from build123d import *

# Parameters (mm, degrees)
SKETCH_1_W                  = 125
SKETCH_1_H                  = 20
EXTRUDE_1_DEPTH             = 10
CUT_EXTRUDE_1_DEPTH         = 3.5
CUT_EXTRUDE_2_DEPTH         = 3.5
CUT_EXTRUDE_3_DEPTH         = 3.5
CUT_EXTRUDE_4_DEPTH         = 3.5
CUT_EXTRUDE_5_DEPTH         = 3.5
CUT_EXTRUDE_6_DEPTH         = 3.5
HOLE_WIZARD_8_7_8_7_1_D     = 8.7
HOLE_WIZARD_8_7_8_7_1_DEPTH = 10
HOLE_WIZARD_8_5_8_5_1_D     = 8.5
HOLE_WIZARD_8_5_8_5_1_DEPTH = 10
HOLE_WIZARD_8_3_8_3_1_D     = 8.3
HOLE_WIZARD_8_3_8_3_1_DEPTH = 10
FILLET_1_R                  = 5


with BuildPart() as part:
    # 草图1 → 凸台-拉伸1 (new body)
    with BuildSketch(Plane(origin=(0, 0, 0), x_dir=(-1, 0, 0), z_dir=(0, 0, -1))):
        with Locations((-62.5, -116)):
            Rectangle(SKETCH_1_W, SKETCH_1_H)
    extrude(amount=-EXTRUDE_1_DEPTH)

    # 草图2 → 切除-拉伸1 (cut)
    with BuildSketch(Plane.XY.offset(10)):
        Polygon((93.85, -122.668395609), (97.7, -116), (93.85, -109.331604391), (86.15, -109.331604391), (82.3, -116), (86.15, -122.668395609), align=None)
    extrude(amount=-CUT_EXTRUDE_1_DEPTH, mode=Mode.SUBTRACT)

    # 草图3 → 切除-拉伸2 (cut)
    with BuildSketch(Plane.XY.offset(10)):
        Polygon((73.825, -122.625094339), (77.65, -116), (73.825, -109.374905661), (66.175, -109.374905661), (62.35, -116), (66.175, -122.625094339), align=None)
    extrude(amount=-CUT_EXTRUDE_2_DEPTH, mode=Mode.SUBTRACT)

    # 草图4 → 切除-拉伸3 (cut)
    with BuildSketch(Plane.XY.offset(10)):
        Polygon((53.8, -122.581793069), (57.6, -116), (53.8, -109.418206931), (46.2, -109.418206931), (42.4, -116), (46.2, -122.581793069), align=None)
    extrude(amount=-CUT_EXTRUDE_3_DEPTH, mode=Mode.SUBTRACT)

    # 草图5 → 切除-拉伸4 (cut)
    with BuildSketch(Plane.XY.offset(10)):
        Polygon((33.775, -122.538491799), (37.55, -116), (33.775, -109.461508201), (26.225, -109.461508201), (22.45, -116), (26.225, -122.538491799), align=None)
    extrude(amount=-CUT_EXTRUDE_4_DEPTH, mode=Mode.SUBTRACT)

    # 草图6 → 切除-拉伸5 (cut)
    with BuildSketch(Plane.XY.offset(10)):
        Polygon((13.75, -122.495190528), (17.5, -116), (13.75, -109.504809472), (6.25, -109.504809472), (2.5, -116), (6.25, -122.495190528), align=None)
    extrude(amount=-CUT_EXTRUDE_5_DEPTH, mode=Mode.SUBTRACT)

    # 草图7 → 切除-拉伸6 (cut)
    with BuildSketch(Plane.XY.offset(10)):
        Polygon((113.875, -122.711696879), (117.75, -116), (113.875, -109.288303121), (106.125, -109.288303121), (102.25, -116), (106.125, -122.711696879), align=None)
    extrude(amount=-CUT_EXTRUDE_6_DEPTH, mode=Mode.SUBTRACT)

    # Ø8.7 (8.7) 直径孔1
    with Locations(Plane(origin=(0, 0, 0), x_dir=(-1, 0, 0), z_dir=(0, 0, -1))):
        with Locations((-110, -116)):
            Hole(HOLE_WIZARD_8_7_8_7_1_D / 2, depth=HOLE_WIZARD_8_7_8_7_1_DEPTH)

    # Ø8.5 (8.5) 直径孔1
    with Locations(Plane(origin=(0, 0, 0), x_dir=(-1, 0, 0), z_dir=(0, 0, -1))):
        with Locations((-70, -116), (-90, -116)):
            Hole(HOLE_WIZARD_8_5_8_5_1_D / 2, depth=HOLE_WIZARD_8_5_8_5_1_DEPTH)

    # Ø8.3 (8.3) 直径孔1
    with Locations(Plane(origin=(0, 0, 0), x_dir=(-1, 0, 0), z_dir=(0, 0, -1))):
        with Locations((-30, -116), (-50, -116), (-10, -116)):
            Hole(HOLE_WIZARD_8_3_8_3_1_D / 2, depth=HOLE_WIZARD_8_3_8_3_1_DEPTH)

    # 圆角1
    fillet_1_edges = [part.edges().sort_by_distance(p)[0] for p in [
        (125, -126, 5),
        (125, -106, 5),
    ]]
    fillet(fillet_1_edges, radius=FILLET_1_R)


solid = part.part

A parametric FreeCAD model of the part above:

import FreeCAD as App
import Part
import Sketcher

V = App.Vector
Q = App.Units.Quantity


def edges_at(feature, points):
    """Names of the edges that pass closest to the given points."""
    edges = feature.Shape.Edges
    near = lambda p: min(range(len(edges)), key=lambda i: edges[i].distToShape(Part.Vertex(*p))[0])
    return sorted({f"Edge{near(p) + 1}" for p in points})

doc = App.newDocument("Part")
body = doc.addObject("PartDesign::Body", "Body")

sketch1 = doc.addObject("Sketcher::SketchObject", "Sketch")
body.addObject(sketch1)
sketch1.AttachmentSupport = (doc.XY_Plane, [""])
sketch1.MapMode = "FlatFace"
sketch1.addGeometry([
    Part.LineSegment(V(125, -106, 0), V(125, -126, 0)),
    Part.LineSegment(V(125, -126, 0), V(0, -126, 0)),
    Part.LineSegment(V(0, -126, 0), V(0, -106, 0)),
    Part.LineSegment(V(0, -106, 0), V(125, -106, 0)),
], False)
sketch1.addConstraint([
    Sketcher.Constraint("Coincident", 0, 2, 1, 1),
    Sketcher.Constraint("Coincident", 1, 2, 2, 1),
    Sketcher.Constraint("Coincident", 2, 2, 3, 1),
    Sketcher.Constraint("Coincident", 3, 2, 0, 1),
    Sketcher.Constraint("Vertical", 0),
    Sketcher.Constraint("Horizontal", 1),
    Sketcher.Constraint("Vertical", 2),
    Sketcher.Constraint("Horizontal", 3),
    Sketcher.Constraint("PointOnObject", 1, 2, -2),
    Sketcher.Constraint("DistanceX", 1, 2, 1, 1, 125.0),
    Sketcher.Constraint("DistanceY", 0, 2, 0, 1, 20.0),
    Sketcher.Constraint("DistanceY", 0, 2, -1, 1, 126.0),
])
pad1 = doc.addObject("PartDesign::Pad", "Pad")
body.addObject(pad1)
pad1.Profile = sketch1
pad1.Length = 10

sketch2 = doc.addObject("Sketcher::SketchObject", "Sketch001")
body.addObject(sketch2)
sketch2.AttachmentSupport = (doc.XY_Plane, [""])
sketch2.MapMode = "FlatFace"
sketch2.AttachmentOffset = App.Placement(V(0, 0, 10), App.Rotation())
sketch2.addGeometry([
    Part.LineSegment(V(93.85, -122.668396, 0), V(97.7, -116, 0)),
    Part.LineSegment(V(97.7, -116, 0), V(93.85, -109.331604, 0)),
    Part.LineSegment(V(93.85, -109.331604, 0), V(86.15, -109.331604, 0)),
    Part.LineSegment(V(86.15, -109.331604, 0), V(82.3, -116, 0)),
    Part.LineSegment(V(82.3, -116, 0), V(86.15, -122.668396, 0)),
    Part.LineSegment(V(86.15, -122.668396, 0), V(93.85, -122.668396, 0)),
], False)
sketch2.addConstraint([
    Sketcher.Constraint("Coincident", 0, 2, 1, 1),
    Sketcher.Constraint("Coincident", 1, 2, 2, 1),
    Sketcher.Constraint("Coincident", 2, 2, 3, 1),
    Sketcher.Constraint("Coincident", 3, 2, 4, 1),
    Sketcher.Constraint("Coincident", 4, 2, 5, 1),
    Sketcher.Constraint("Coincident", 5, 2, 0, 1),
    Sketcher.Constraint("Horizontal", 2),
    Sketcher.Constraint("Horizontal", 5),
    Sketcher.Constraint("Parallel", 0, 3),
    Sketcher.Constraint("Parallel", 1, 4),
    Sketcher.Constraint("Horizontal", 0, 2, 3, 2),
    Sketcher.Constraint("Vertical", 2, 2, 4, 2),
    Sketcher.Constraint("Vertical", 1, 2, 5, 2),
    Sketcher.Constraint("Angle", 0, Q("60 deg")),
    Sketcher.Constraint("DistanceX", 2, 2, 2, 1, 7.7),
    Sketcher.Constraint("DistanceY", 0, 2, -1, 1, 116.0),
    Sketcher.Constraint("Distance", 0, 7.7),
    Sketcher.Constraint("DistanceX", -1, 1, 0, 2, 97.7),
])
pocket1 = doc.addObject("PartDesign::Pocket", "Pocket")
body.addObject(pocket1)
pocket1.Profile = sketch2
pocket1.Length = 3.5

sketch3 = doc.addObject("Sketcher::SketchObject", "Sketch002")
body.addObject(sketch3)
sketch3.AttachmentSupport = (doc.XY_Plane, [""])
sketch3.MapMode = "FlatFace"
sketch3.AttachmentOffset = App.Placement(V(0, 0, 10), App.Rotation())
sketch3.addGeometry([
    Part.LineSegment(V(73.825, -122.625094, 0), V(77.65, -116, 0)),
    Part.LineSegment(V(77.65, -116, 0), V(73.825, -109.374906, 0)),
    Part.LineSegment(V(73.825, -109.374906, 0), V(66.175, -109.374906, 0)),
    Part.LineSegment(V(66.175, -109.374906, 0), V(62.35, -116, 0)),
    Part.LineSegment(V(62.35, -116, 0), V(66.175, -122.625094, 0)),
    Part.LineSegment(V(66.175, -122.625094, 0), V(73.825, -122.625094, 0)),
], False)
sketch3.addConstraint([
    Sketcher.Constraint("Coincident", 0, 2, 1, 1),
    Sketcher.Constraint("Coincident", 1, 2, 2, 1),
    Sketcher.Constraint("Coincident", 2, 2, 3, 1),
    Sketcher.Constraint("Coincident", 3, 2, 4, 1),
    Sketcher.Constraint("Coincident", 4, 2, 5, 1),
    Sketcher.Constraint("Coincident", 5, 2, 0, 1),
    Sketcher.Constraint("Horizontal", 2),
    Sketcher.Constraint("Horizontal", 5),
    Sketcher.Constraint("Parallel", 0, 3),
    Sketcher.Constraint("Parallel", 1, 4),
    Sketcher.Constraint("Horizontal", 0, 2, 3, 2),
    Sketcher.Constraint("Vertical", 2, 2, 4, 2),
    Sketcher.Constraint("Vertical", 1, 2, 5, 2),
    Sketcher.Constraint("Angle", 0, Q("60 deg")),
    Sketcher.Constraint("DistanceY", 0, 2, -1, 1, 116.0),
    Sketcher.Constraint("DistanceX", 2, 2, 2, 1, 7.65),
    Sketcher.Constraint("DistanceX", 3, 2, 0, 2, 15.3),
    Sketcher.Constraint("DistanceX", -1, 1, 0, 2, 77.65),
])
pocket2 = doc.addObject("PartDesign::Pocket", "Pocket001")
body.addObject(pocket2)
pocket2.Profile = sketch3
pocket2.Length = 3.5

sketch4 = doc.addObject("Sketcher::SketchObject", "Sketch003")
body.addObject(sketch4)
sketch4.AttachmentSupport = (doc.XY_Plane, [""])
sketch4.MapMode = "FlatFace"
sketch4.AttachmentOffset = App.Placement(V(0, 0, 10), App.Rotation())
sketch4.addGeometry([
    Part.LineSegment(V(53.8, -122.581793, 0), V(57.6, -116, 0)),
    Part.LineSegment(V(57.6, -116, 0), V(53.8, -109.418207, 0)),
    Part.LineSegment(V(53.8, -109.418207, 0), V(46.2, -109.418207, 0)),
    Part.LineSegment(V(46.2, -109.418207, 0), V(42.4, -116, 0)),
    Part.LineSegment(V(42.4, -116, 0), V(46.2, -122.581793, 0)),
    Part.LineSegment(V(46.2, -122.581793, 0), V(53.8, -122.581793, 0)),
], False)
sketch4.addConstraint([
    Sketcher.Constraint("Coincident", 0, 2, 1, 1),
    Sketcher.Constraint("Coincident", 1, 2, 2, 1),
    Sketcher.Constraint("Coincident", 2, 2, 3, 1),
    Sketcher.Constraint("Coincident", 3, 2, 4, 1),
    Sketcher.Constraint("Coincident", 4, 2, 5, 1),
    Sketcher.Constraint("Coincident", 5, 2, 0, 1),
    Sketcher.Constraint("Horizontal", 2),
    Sketcher.Constraint("Horizontal", 5),
    Sketcher.Constraint("Parallel", 0, 3),
    Sketcher.Constraint("Parallel", 1, 4),
    Sketcher.Constraint("Horizontal", 0, 2, 3, 2),
    Sketcher.Constraint("Vertical", 2, 2, 4, 2),
    Sketcher.Constraint("Vertical", 1, 2, 5, 2),
    Sketcher.Constraint("Angle", 0, Q("60 deg")),
    Sketcher.Constraint("DistanceX", 2, 2, 2, 1, 7.6),
    Sketcher.Constraint("DistanceY", 0, 2, -1, 1, 116.0),
    Sketcher.Constraint("Distance", 0, 7.6),
    Sketcher.Constraint("DistanceX", -1, 1, 0, 2, 57.6),
])
pocket3 = doc.addObject("PartDesign::Pocket", "Pocket002")
body.addObject(pocket3)
pocket3.Profile = sketch4
pocket3.Length = 3.5

sketch5 = doc.addObject("Sketcher::SketchObject", "Sketch004")
body.addObject(sketch5)
sketch5.AttachmentSupport = (doc.XY_Plane, [""])
sketch5.MapMode = "FlatFace"
sketch5.AttachmentOffset = App.Placement(V(0, 0, 10), App.Rotation())
sketch5.addGeometry([
    Part.LineSegment(V(33.775, -122.538492, 0), V(37.55, -116, 0)),
    Part.LineSegment(V(37.55, -116, 0), V(33.775, -109.461508, 0)),
    Part.LineSegment(V(33.775, -109.461508, 0), V(26.225, -109.461508, 0)),
    Part.LineSegment(V(26.225, -109.461508, 0), V(22.45, -116, 0)),
    Part.LineSegment(V(22.45, -116, 0), V(26.225, -122.538492, 0)),
    Part.LineSegment(V(26.225, -122.538492, 0), V(33.775, -122.538492, 0)),
], False)
sketch5.addConstraint([
    Sketcher.Constraint("Coincident", 0, 2, 1, 1),
    Sketcher.Constraint("Coincident", 1, 2, 2, 1),
    Sketcher.Constraint("Coincident", 2, 2, 3, 1),
    Sketcher.Constraint("Coincident", 3, 2, 4, 1),
    Sketcher.Constraint("Coincident", 4, 2, 5, 1),
    Sketcher.Constraint("Coincident", 5, 2, 0, 1),
    Sketcher.Constraint("Horizontal", 2),
    Sketcher.Constraint("Horizontal", 5),
    Sketcher.Constraint("Parallel", 0, 3),
    Sketcher.Constraint("Parallel", 1, 4),
    Sketcher.Constraint("Horizontal", 0, 2, 3, 2),
    Sketcher.Constraint("Vertical", 2, 2, 4, 2),
    Sketcher.Constraint("Vertical", 1, 2, 5, 2),
    Sketcher.Constraint("Angle", 0, Q("60 deg")),
    Sketcher.Constraint("DistanceY", 0, 2, -1, 1, 116.0),
    Sketcher.Constraint("DistanceX", 2, 2, 2, 1, 7.55),
    Sketcher.Constraint("DistanceX", 3, 2, 0, 2, 15.1),
    Sketcher.Constraint("DistanceX", -1, 1, 0, 2, 37.55),
])
pocket4 = doc.addObject("PartDesign::Pocket", "Pocket003")
body.addObject(pocket4)
pocket4.Profile = sketch5
pocket4.Length = 3.5

sketch6 = doc.addObject("Sketcher::SketchObject", "Sketch005")
body.addObject(sketch6)
sketch6.AttachmentSupport = (doc.XY_Plane, [""])
sketch6.MapMode = "FlatFace"
sketch6.AttachmentOffset = App.Placement(V(0, 0, 10), App.Rotation())
sketch6.addGeometry([
    Part.LineSegment(V(13.75, -122.495191, 0), V(17.5, -116, 0)),
    Part.LineSegment(V(17.5, -116, 0), V(13.75, -109.504809, 0)),
    Part.LineSegment(V(13.75, -109.504809, 0), V(6.25, -109.504809, 0)),
    Part.LineSegment(V(6.25, -109.504809, 0), V(2.5, -116, 0)),
    Part.LineSegment(V(2.5, -116, 0), V(6.25, -122.495191, 0)),
    Part.LineSegment(V(6.25, -122.495191, 0), V(13.75, -122.495191, 0)),
], False)
sketch6.addConstraint([
    Sketcher.Constraint("Coincident", 0, 2, 1, 1),
    Sketcher.Constraint("Coincident", 1, 2, 2, 1),
    Sketcher.Constraint("Coincident", 2, 2, 3, 1),
    Sketcher.Constraint("Coincident", 3, 2, 4, 1),
    Sketcher.Constraint("Coincident", 4, 2, 5, 1),
    Sketcher.Constraint("Coincident", 5, 2, 0, 1),
    Sketcher.Constraint("Horizontal", 2),
    Sketcher.Constraint("Horizontal", 5),
    Sketcher.Constraint("Parallel", 0, 3),
    Sketcher.Constraint("Parallel", 1, 4),
    Sketcher.Constraint("Horizontal", 0, 2, 3, 2),
    Sketcher.Constraint("Vertical", 2, 2, 4, 2),
    Sketcher.Constraint("Vertical", 1, 2, 5, 2),
    Sketcher.Constraint("Angle", 0, Q("60 deg")),
    Sketcher.Constraint("DistanceX", 2, 2, 2, 1, 7.5),
    Sketcher.Constraint("DistanceY", 0, 2, -1, 1, 116.0),
    Sketcher.Constraint("DistanceX", 3, 2, 0, 2, 15.0),
    Sketcher.Constraint("DistanceX", -1, 1, 0, 2, 17.5),
])
pocket5 = doc.addObject("PartDesign::Pocket", "Pocket004")
body.addObject(pocket5)
pocket5.Profile = sketch6
pocket5.Length = 3.5

sketch7 = doc.addObject("Sketcher::SketchObject", "Sketch006")
body.addObject(sketch7)
sketch7.AttachmentSupport = (doc.XY_Plane, [""])
sketch7.MapMode = "FlatFace"
sketch7.AttachmentOffset = App.Placement(V(0, 0, 10), App.Rotation())
sketch7.addGeometry([
    Part.LineSegment(V(113.875, -122.711697, 0), V(117.75, -116, 0)),
    Part.LineSegment(V(117.75, -116, 0), V(113.875, -109.288303, 0)),
    Part.LineSegment(V(113.875, -109.288303, 0), V(106.125, -109.288303, 0)),
    Part.LineSegment(V(106.125, -109.288303, 0), V(102.25, -116, 0)),
    Part.LineSegment(V(102.25, -116, 0), V(106.125, -122.711697, 0)),
    Part.LineSegment(V(106.125, -122.711697, 0), V(113.875, -122.711697, 0)),
], False)
sketch7.addConstraint([
    Sketcher.Constraint("Coincident", 0, 2, 1, 1),
    Sketcher.Constraint("Coincident", 1, 2, 2, 1),
    Sketcher.Constraint("Coincident", 2, 2, 3, 1),
    Sketcher.Constraint("Coincident", 3, 2, 4, 1),
    Sketcher.Constraint("Coincident", 4, 2, 5, 1),
    Sketcher.Constraint("Coincident", 5, 2, 0, 1),
    Sketcher.Constraint("Horizontal", 2),
    Sketcher.Constraint("Horizontal", 5),
    Sketcher.Constraint("Parallel", 0, 3),
    Sketcher.Constraint("Parallel", 1, 4),
    Sketcher.Constraint("Horizontal", 0, 2, 3, 2),
    Sketcher.Constraint("Vertical", 2, 2, 4, 2),
    Sketcher.Constraint("Vertical", 1, 2, 5, 2),
    Sketcher.Constraint("Angle", 0, Q("60 deg")),
    Sketcher.Constraint("DistanceY", 0, 2, -1, 1, 116.0),
    Sketcher.Constraint("DistanceX", 2, 2, 2, 1, 7.75),
    Sketcher.Constraint("DistanceX", 3, 2, 0, 2, 15.5),
    Sketcher.Constraint("DistanceX", -1, 1, 0, 2, 117.75),
])
pocket6 = doc.addObject("PartDesign::Pocket", "Pocket005")
body.addObject(pocket6)
pocket6.Profile = sketch7
pocket6.Length = 3.5

sketch8 = doc.addObject("Sketcher::SketchObject", "Sketch007")
body.addObject(sketch8)
sketch8.AttachmentSupport = (doc.XY_Plane, [""])
sketch8.MapMode = "FlatFace"
sketch8.addGeometry(Part.Circle(V(110, -116, 0), V(0, 0, 1), 4.35), False)
sketch8.addConstraint([
    Sketcher.Constraint("Diameter", 0, 8.7),
    Sketcher.Constraint("DistanceX", -1, 1, 0, 3, 110.0),
    Sketcher.Constraint("DistanceY", 0, 3, -1, 1, 116.0),
])
doc.recompute()
hole = doc.addObject("PartDesign::Hole", "Hole")
body.addObject(hole)
hole.Profile = sketch8
hole.ThreadType = "None"
hole.Diameter = 8.7
hole.DepthType = "Dimension"
hole.Depth = 10
hole.DrillPoint = "Flat"
hole.Reversed = True

sketch9 = doc.addObject("Sketcher::SketchObject", "Sketch008")
body.addObject(sketch9)
sketch9.AttachmentSupport = (doc.XY_Plane, [""])
sketch9.MapMode = "FlatFace"
sketch9.addGeometry([
    Part.Circle(V(70, -116, 0), V(0, 0, 1), 4.25),
    Part.Circle(V(90, -116, 0), V(0, 0, 1), 4.25),
], False)
sketch9.addConstraint([
    Sketcher.Constraint("Equal", 0, 1),
    Sketcher.Constraint("Horizontal", 0, 3, 1, 3),
    Sketcher.Constraint("Diameter", 0, 8.5),
    Sketcher.Constraint("DistanceX", -1, 1, 0, 3, 70.0),
    Sketcher.Constraint("DistanceY", 0, 3, -1, 1, 116.0),
    Sketcher.Constraint("DistanceX", -1, 1, 1, 3, 90.0),
])
doc.recompute()
hole2 = doc.addObject("PartDesign::Hole", "Hole001")
body.addObject(hole2)
hole2.Profile = sketch9
hole2.ThreadType = "None"
hole2.Diameter = 8.5
hole2.DepthType = "Dimension"
hole2.Depth = 10
hole2.DrillPoint = "Flat"
hole2.Reversed = True

sketch10 = doc.addObject("Sketcher::SketchObject", "Sketch009")
body.addObject(sketch10)
sketch10.AttachmentSupport = (doc.XY_Plane, [""])
sketch10.MapMode = "FlatFace"
sketch10.addGeometry([
    Part.Circle(V(30, -116, 0), V(0, 0, 1), 4.15),
    Part.Circle(V(50, -116, 0), V(0, 0, 1), 4.15),
    Part.Circle(V(10, -116, 0), V(0, 0, 1), 4.15),
], False)
sketch10.addConstraint([
    Sketcher.Constraint("Equal", 0, 1),
    Sketcher.Constraint("Equal", 1, 2),
    Sketcher.Constraint("Horizontal", 0, 3, 1, 3),
    Sketcher.Constraint("Horizontal", 1, 3, 2, 3),
    Sketcher.Constraint("Diameter", 0, 8.3),
    Sketcher.Constraint("DistanceX", -1, 1, 0, 3, 30.0),
    Sketcher.Constraint("DistanceY", 0, 3, -1, 1, 116.0),
    Sketcher.Constraint("DistanceX", -1, 1, 1, 3, 50.0),
    Sketcher.Constraint("DistanceX", -1, 1, 2, 3, 10.0),
])
doc.recompute()
hole3 = doc.addObject("PartDesign::Hole", "Hole002")
body.addObject(hole3)
hole3.Profile = sketch10
hole3.ThreadType = "None"
hole3.Diameter = 8.3
hole3.DepthType = "Dimension"
hole3.Depth = 10
hole3.DrillPoint = "Flat"
hole3.Reversed = True
doc.recompute()

fillet = doc.addObject("PartDesign::Fillet", "Fillet")
body.addObject(fillet)
fillet.Base = (hole3, edges_at(hole3, [(125, -126, 5), (125, -106, 5)]))
fillet.Radius = 5

doc.recompute()
